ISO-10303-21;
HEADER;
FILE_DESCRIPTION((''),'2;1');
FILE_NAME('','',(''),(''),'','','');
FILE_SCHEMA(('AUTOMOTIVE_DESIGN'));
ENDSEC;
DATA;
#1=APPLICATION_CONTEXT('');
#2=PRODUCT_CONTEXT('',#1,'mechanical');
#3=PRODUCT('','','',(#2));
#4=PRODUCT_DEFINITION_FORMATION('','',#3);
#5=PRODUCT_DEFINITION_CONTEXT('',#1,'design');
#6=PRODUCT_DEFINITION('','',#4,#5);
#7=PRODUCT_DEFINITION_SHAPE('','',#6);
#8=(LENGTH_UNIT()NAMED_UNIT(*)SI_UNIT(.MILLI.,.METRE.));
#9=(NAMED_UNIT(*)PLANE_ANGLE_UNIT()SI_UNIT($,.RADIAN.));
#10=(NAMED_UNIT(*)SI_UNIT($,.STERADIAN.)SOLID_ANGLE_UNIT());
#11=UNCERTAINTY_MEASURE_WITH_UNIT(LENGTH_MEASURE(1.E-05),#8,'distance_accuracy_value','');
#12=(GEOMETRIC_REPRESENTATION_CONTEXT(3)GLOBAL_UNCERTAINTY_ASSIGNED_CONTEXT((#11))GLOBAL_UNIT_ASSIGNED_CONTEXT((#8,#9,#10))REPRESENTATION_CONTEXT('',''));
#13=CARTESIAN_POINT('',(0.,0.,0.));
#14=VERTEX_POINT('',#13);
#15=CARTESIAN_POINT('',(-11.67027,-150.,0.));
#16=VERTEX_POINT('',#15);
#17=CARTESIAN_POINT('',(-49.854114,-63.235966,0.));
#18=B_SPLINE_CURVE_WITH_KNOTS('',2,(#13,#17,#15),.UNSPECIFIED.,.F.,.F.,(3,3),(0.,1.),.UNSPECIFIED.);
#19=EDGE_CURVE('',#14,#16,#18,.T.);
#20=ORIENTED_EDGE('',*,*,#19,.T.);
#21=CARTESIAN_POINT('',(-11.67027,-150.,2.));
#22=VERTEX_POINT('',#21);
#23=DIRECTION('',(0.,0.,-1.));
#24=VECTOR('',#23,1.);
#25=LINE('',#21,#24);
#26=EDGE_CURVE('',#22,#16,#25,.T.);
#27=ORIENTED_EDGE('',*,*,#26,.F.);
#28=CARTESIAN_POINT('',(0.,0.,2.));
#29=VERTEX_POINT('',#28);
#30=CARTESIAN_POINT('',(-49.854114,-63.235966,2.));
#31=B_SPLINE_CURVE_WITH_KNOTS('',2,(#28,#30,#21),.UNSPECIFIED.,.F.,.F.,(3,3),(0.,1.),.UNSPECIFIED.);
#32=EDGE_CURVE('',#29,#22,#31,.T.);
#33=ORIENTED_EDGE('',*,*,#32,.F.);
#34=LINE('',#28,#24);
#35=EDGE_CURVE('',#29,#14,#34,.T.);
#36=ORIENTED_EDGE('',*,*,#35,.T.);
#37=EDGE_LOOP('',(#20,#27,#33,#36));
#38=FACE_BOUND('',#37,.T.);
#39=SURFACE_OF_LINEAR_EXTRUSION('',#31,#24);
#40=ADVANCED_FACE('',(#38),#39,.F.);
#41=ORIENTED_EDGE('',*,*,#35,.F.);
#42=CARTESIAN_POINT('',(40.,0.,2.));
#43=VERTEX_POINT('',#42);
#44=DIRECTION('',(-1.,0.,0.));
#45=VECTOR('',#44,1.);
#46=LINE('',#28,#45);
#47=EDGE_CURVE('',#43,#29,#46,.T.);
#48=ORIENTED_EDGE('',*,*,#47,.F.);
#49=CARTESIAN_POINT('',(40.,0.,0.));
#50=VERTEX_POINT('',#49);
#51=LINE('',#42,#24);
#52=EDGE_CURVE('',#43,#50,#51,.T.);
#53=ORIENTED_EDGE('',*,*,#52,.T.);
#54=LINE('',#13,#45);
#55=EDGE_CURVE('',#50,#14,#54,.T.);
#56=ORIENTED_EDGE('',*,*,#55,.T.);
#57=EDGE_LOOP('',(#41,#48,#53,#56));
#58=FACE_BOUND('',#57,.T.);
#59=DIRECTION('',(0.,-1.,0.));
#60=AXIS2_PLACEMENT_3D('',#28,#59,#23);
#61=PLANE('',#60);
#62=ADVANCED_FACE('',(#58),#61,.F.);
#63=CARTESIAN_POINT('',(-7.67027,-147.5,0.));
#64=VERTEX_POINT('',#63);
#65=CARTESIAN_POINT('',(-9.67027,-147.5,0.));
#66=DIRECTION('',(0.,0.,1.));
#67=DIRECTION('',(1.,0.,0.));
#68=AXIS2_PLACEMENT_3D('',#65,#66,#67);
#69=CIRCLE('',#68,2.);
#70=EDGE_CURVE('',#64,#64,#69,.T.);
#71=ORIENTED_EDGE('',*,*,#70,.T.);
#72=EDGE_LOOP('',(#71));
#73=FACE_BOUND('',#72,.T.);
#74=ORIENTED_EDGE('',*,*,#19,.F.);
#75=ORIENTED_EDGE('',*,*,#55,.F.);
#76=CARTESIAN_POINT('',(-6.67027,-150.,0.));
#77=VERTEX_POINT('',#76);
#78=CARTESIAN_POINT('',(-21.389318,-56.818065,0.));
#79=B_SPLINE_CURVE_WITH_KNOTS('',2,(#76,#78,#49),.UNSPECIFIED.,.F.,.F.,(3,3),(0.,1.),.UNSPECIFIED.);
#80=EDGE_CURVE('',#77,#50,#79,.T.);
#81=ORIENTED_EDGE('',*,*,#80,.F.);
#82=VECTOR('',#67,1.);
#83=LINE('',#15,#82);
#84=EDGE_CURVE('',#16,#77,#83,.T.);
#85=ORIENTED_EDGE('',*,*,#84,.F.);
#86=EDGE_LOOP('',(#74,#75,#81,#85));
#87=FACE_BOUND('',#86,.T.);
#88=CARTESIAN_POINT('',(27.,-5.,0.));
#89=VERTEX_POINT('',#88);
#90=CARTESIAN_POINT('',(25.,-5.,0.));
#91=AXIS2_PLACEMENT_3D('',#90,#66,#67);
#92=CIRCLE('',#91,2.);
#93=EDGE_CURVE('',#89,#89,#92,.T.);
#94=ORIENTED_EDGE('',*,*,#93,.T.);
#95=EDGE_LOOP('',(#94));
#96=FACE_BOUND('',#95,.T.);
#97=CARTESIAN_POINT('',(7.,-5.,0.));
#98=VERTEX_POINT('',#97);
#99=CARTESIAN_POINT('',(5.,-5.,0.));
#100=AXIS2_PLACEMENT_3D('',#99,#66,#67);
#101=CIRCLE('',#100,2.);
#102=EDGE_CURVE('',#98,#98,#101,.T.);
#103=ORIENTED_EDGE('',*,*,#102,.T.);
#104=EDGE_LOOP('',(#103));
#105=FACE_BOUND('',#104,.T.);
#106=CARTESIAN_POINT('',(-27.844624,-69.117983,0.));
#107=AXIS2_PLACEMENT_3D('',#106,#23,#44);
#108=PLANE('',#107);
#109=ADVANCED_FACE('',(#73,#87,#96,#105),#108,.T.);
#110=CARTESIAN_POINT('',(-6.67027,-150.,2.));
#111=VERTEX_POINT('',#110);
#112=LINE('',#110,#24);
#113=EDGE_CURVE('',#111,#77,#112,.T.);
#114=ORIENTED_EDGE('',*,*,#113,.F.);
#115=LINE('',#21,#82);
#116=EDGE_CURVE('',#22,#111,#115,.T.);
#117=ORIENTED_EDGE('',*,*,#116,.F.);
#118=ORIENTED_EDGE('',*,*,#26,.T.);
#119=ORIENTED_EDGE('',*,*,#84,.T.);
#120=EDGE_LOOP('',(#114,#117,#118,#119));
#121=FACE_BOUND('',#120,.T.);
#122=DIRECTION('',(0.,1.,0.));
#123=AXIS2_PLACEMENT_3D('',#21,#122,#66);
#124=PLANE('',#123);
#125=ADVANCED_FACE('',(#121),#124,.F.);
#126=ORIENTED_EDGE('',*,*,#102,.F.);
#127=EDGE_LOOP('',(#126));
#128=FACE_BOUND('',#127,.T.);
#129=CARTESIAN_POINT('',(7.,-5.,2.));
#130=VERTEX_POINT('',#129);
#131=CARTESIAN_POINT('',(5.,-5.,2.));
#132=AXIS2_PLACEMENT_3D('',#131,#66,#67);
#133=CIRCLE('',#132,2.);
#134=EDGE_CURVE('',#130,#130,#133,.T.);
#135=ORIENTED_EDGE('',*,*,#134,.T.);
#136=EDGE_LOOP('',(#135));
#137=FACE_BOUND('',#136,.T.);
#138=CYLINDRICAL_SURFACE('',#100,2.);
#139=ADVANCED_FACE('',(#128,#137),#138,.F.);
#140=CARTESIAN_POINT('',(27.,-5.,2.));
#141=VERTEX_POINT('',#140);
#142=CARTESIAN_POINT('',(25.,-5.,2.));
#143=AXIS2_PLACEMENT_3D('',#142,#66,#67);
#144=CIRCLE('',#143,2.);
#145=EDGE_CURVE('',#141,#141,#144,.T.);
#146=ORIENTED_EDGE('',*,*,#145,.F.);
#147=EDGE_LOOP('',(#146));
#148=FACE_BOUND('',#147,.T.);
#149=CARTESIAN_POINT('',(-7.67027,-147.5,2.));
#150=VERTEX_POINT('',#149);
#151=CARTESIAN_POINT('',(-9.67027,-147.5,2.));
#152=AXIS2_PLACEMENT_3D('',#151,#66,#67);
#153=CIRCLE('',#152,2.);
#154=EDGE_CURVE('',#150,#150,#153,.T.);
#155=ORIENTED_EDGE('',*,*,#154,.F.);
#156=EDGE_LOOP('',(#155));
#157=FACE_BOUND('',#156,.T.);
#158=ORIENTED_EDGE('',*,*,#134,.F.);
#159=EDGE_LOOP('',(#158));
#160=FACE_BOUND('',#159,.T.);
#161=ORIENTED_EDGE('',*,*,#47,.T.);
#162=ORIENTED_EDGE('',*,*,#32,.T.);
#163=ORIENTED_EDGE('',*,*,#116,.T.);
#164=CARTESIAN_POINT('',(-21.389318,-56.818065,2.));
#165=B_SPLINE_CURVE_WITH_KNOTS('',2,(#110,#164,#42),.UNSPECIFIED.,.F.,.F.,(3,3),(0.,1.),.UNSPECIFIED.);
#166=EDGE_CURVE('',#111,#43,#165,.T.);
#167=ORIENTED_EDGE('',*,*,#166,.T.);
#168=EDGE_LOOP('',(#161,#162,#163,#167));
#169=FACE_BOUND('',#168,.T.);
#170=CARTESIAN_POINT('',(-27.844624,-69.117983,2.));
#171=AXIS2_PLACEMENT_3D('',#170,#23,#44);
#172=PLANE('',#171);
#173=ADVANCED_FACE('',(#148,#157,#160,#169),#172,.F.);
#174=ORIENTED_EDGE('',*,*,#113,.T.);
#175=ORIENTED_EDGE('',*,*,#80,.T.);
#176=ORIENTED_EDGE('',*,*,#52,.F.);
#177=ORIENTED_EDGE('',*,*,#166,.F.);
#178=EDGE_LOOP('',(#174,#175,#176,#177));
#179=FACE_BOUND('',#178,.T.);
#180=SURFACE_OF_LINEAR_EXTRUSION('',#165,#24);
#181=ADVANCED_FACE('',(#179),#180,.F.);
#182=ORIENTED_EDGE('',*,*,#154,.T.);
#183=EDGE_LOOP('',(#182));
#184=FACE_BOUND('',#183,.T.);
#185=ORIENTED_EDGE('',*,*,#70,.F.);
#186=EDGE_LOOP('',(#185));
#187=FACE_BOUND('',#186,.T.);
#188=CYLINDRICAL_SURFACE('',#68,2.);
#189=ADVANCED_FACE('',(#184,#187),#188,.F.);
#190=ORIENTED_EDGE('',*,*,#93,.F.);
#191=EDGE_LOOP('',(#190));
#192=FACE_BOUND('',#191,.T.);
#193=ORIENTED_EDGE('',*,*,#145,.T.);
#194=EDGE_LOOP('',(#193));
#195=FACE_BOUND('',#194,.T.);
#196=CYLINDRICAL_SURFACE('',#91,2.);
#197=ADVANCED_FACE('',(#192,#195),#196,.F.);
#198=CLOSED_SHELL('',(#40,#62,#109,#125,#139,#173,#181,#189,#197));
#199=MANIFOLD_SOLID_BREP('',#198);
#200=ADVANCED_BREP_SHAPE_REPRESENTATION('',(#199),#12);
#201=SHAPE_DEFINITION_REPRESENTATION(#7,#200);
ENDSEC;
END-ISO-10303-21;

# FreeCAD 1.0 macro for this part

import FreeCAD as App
import Part
import Sketcher
Q = App.Units.Quantity

doc = App.newDocument("Part")
body = doc.addObject("PartDesign::Body", "Body")

# Sketch on XY plane
sketch1 = body.newObject("Sketcher::SketchObject", "Sketch")
sketch1.AttachmentSupport = (doc.getObject("XY_Plane"), [""])
sketch1.MapMode = "FlatFace"
sketch1.addGeometry(Part.LineSegment(App.Vector(40, 0, 0), App.Vector(0, 0, 0)), False)
sketch1.addGeometry(Part.BSplineCurve([App.Vector(0, 0, 0), App.Vector(-49.854114, -63.235966, 0), App.Vector(-11.67027, -150, 0)], [3, 3], [0, 1], False, 2, [1, 1, 1], False), False)
sketch1.addGeometry(Part.LineSegment(App.Vector(-11.67027, -150, 0), App.Vector(-6.67027, -150, 0)), False)
sketch1.addGeometry(Part.BSplineCurve([App.Vector(40, 0, 0), App.Vector(-21.389318, -56.818065, 0), App.Vector(-6.67027, -150, 0)], [3, 3], [0, 1], False, 2, [1, 1, 1], False), False)
sketch1.addConstraint(Sketcher.Constraint("Block", 1))
sketch1.addConstraint(Sketcher.Constraint("Block", 3))
sketch1.addConstraint(Sketcher.Constraint("Coincident", 0, 2, 1, 1))
sketch1.addConstraint(Sketcher.Constraint("Coincident", 1, 2, 2, 1))
sketch1.addConstraint(Sketcher.Constraint("Coincident", 2, 2, 3, 2))
sketch1.addConstraint(Sketcher.Constraint("Coincident", 3, 1, 0, 1))
pad1 = body.newObject("PartDesign::Pad", "Pad")
pad1.Profile = sketch1
pad1.Length = 2

# Sketch on XY plane
sketch2 = body.newObject("Sketcher::SketchObject", "Sketch001")
sketch2.AttachmentSupport = (doc.getObject("XY_Plane"), [""])
sketch2.MapMode = "FlatFace"
sketch2.AttachmentOffset = App.Placement(App.Vector(0, 0, 2), App.Rotation())
sketch2.addGeometry(Part.Circle(App.Vector(5, -5, 0), App.Vector(0, 0, 1), 2), False)
sketch2.addGeometry(Part.Circle(App.Vector(25, -5, 0), App.Vector(0, 0, 1), 2), False)
sketch2.addGeometry(Part.Circle(App.Vector(-9.7, -147.5, 0), App.Vector(0, 0, 1), 2), False)
sketch2.addConstraint(Sketcher.Constraint("Equal", 0, 1))
sketch2.addConstraint(Sketcher.Constraint("Equal", 1, 2))
sketch2.addConstraint(Sketcher.Constraint("Horizontal", 0, 3, 1, 3))
sketch2.addConstraint(Sketcher.Constraint("Diameter", 0, Q("4 mm")))
sketch2.addConstraint(Sketcher.Constraint("DistanceX", -1, 1, 0, 3, Q("5 mm")))
sketch2.addConstraint(Sketcher.Constraint("DistanceY", 0, 3, -1, 1, Q("5 mm")))
sketch2.addConstraint(Sketcher.Constraint("DistanceX", -1, 1, 1, 3, Q("25 mm")))
sketch2.addConstraint(Sketcher.Constraint("DistanceY", 2, 3, -1, 1, Q("147.5 mm")))
sketch2.addConstraint(Sketcher.Constraint("DistanceX", 2, 3, -1, 1, Q("9.67027 mm")))
pocket1 = body.newObject("PartDesign::Pocket", "Pocket")
pocket1.Profile = sketch2
pocket1.Type = "ThroughAll"

doc.recompute()
